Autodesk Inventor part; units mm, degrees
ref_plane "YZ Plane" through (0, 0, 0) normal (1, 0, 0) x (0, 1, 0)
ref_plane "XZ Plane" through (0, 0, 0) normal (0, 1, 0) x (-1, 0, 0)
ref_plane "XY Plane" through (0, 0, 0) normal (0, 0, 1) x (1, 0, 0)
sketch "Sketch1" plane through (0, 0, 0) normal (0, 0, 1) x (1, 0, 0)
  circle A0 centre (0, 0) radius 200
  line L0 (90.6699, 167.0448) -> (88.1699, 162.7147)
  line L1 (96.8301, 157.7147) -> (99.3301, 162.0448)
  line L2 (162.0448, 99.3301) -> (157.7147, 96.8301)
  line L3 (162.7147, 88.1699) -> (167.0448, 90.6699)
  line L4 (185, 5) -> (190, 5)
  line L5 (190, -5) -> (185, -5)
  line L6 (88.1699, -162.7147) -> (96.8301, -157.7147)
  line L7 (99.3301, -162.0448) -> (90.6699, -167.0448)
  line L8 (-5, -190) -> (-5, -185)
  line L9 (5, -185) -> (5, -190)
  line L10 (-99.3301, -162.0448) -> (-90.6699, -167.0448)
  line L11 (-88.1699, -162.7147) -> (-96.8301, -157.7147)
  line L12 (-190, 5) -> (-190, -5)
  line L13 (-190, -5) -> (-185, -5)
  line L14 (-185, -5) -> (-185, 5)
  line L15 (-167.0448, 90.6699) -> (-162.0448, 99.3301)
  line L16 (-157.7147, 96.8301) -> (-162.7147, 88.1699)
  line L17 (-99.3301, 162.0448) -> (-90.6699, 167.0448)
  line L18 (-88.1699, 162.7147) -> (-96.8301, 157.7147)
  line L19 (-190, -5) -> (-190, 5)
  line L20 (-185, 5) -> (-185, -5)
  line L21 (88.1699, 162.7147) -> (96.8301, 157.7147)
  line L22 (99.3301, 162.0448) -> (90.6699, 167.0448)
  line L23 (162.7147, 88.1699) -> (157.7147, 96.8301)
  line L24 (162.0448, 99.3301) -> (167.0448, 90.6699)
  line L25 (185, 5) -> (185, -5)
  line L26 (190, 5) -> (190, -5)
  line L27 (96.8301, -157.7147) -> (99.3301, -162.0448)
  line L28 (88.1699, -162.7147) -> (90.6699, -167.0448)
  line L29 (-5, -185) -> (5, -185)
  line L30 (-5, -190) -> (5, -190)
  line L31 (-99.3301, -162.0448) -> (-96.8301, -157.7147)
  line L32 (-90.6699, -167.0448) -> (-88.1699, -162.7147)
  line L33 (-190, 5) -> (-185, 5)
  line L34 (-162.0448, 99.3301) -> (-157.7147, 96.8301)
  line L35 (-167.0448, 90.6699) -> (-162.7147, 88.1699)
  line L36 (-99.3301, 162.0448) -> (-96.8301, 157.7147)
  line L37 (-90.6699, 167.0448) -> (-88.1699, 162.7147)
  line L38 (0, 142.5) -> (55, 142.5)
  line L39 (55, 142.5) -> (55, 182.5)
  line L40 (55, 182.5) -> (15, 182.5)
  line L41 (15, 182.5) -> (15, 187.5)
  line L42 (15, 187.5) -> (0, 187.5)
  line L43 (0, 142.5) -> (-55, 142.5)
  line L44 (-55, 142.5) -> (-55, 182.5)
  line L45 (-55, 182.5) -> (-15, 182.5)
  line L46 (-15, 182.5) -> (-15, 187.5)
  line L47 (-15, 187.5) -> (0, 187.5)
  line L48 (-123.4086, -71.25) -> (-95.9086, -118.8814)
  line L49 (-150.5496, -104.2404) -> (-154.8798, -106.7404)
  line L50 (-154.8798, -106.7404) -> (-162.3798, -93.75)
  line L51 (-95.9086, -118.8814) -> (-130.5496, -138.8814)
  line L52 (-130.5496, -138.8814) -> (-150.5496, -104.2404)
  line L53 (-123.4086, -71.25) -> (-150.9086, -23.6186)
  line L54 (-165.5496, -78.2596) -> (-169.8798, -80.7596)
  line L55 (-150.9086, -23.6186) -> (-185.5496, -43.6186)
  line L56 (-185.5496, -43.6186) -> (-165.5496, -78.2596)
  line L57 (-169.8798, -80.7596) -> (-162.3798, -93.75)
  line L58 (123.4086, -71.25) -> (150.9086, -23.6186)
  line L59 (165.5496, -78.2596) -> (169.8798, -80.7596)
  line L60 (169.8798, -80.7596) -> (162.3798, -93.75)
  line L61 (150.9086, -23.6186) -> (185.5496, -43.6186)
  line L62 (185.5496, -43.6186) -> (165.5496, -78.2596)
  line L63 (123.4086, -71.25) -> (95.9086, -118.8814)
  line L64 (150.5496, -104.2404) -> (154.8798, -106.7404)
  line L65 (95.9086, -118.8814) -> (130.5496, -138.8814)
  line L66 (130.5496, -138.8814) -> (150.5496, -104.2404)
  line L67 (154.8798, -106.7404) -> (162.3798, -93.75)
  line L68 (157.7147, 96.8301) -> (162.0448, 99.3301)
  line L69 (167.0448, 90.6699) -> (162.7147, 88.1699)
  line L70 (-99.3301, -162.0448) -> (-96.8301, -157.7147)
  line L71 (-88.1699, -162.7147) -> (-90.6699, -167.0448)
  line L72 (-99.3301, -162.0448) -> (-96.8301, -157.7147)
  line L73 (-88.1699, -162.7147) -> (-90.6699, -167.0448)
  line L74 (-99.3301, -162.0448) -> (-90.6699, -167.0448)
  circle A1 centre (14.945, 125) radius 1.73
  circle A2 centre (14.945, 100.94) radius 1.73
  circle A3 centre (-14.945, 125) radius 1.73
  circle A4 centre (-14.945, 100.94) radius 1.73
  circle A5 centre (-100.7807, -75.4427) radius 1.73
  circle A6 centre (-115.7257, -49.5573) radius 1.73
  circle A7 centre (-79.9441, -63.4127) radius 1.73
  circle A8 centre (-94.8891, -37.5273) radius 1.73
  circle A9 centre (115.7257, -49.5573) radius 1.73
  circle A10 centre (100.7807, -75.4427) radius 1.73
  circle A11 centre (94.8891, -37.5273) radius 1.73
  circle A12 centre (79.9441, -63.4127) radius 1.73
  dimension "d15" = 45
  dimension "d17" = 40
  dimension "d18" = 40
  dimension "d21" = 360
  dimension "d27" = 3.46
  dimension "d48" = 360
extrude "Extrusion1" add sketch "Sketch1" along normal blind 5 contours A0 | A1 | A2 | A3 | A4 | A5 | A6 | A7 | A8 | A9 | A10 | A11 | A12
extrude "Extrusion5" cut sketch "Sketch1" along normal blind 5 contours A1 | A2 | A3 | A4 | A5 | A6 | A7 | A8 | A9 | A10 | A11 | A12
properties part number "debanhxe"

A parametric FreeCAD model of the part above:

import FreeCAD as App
import Part
import Sketcher
Q = App.Units.Quantity

doc = App.newDocument("Part")
body = doc.addObject("PartDesign::Body", "Body")

# Sketch on XY plane
sketch1 = body.newObject("Sketcher::SketchObject", "Sketch")
sketch1.AttachmentSupport = (doc.getObject("XY_Plane"), [""])
sketch1.MapMode = "FlatFace"
sketch1.addGeometry([
    Part.Circle(App.Vector(0, 0, 0), App.Vector(0, 0, 1), 200),  # 0
    Part.LineSegment(App.Vector(-90.7, -167, 0), App.Vector(-99.3, -162, 0)),  # 1
    Part.LineSegment(App.Vector(-99.3, -162, 0), App.Vector(-96.8, -157.7, 0)),  # 2
    Part.LineSegment(App.Vector(-96.8, -157.7, 0), App.Vector(-88.2, -162.7, 0)),  # 3
    Part.LineSegment(App.Vector(-88.2, -162.7, 0), App.Vector(-90.7, -167, 0)),  # 4
    Part.LineSegment(App.Vector(-150.9, -23.6, 0), App.Vector(-95.9, -118.9, 0)),  # 5
    Part.LineSegment(App.Vector(-95.9, -118.9, 0), App.Vector(-130.5, -138.9, 0)),  # 6
    Part.LineSegment(App.Vector(-130.5, -138.9, 0), App.Vector(-150.5, -104.2, 0)),  # 7
    Part.LineSegment(App.Vector(-150.5, -104.2, 0), App.Vector(-154.9, -106.7, 0)),  # 8
    Part.LineSegment(App.Vector(-154.9, -106.7, 0), App.Vector(-169.9, -80.8, 0)),  # 9
    Part.LineSegment(App.Vector(-169.9, -80.8, 0), App.Vector(-165.5, -78.3, 0)),  # 10
    Part.LineSegment(App.Vector(-165.5, -78.3, 0), App.Vector(-185.5, -43.6, 0)),  # 11
    Part.LineSegment(App.Vector(-185.5, -43.6, 0), App.Vector(-150.9, -23.6, 0)),  # 12
    Part.LineSegment(App.Vector(5, -190, 0), App.Vector(-5, -190, 0)),  # 13
    Part.LineSegment(App.Vector(-5, -190, 0), App.Vector(-5, -185, 0)),  # 14
    Part.LineSegment(App.Vector(-5, -185, 0), App.Vector(5, -185, 0)),  # 15
    Part.LineSegment(App.Vector(5, -185, 0), App.Vector(5, -190, 0)),  # 16
    Part.LineSegment(App.Vector(90.7, -167, 0), App.Vector(88.2, -162.7, 0)),  # 17
    Part.LineSegment(App.Vector(88.2, -162.7, 0), App.Vector(96.8, -157.7, 0)),  # 18
    Part.LineSegment(App.Vector(96.8, -157.7, 0), App.Vector(99.3, -162, 0)),  # 19
    Part.LineSegment(App.Vector(99.3, -162, 0), App.Vector(90.7, -167, 0)),  # 20
    Part.LineSegment(App.Vector(95.9, -118.9, 0), App.Vector(150.9, -23.6, 0)),  # 21
    Part.LineSegment(App.Vector(150.9, -23.6, 0), App.Vector(185.5, -43.6, 0)),  # 22
    Part.LineSegment(App.Vector(185.5, -43.6, 0), App.Vector(165.5, -78.3, 0)),  # 23
    Part.LineSegment(App.Vector(165.5, -78.3, 0), App.Vector(169.9, -80.8, 0)),  # 24
    Part.LineSegment(App.Vector(169.9, -80.8, 0), App.Vector(154.9, -106.7, 0)),  # 25
    Part.LineSegment(App.Vector(154.9, -106.7, 0), App.Vector(150.5, -104.2, 0)),  # 26
    Part.LineSegment(App.Vector(150.5, -104.2, 0), App.Vector(130.5, -138.9, 0)),  # 27
    Part.LineSegment(App.Vector(130.5, -138.9, 0), App.Vector(95.9, -118.9, 0)),  # 28
    Part.LineSegment(App.Vector(-190, -5, 0), App.Vector(-190, 5, 0)),  # 29
    Part.LineSegment(App.Vector(-190, 5, 0), App.Vector(-185, 5, 0)),  # 30
    Part.LineSegment(App.Vector(-185, 5, 0), App.Vector(-185, -5, 0)),  # 31
    Part.LineSegment(App.Vector(-185, -5, 0), App.Vector(-190, -5, 0)),  # 32
    Part.LineSegment(App.Vector(-162.7, 88.2, 0), App.Vector(-167, 90.7, 0)),  # 33
    Part.LineSegment(App.Vector(-167, 90.7, 0), App.Vector(-162, 99.3, 0)),  # 34
    Part.LineSegment(App.Vector(-162, 99.3, 0), App.Vector(-157.7, 96.8, 0)),  # 35
    Part.LineSegment(App.Vector(-157.7, 96.8, 0), App.Vector(-162.7, 88.2, 0)),  # 36
    Part.LineSegment(App.Vector(-96.8, 157.7, 0), App.Vector(-99.3, 162, 0)),  # 37
    Part.LineSegment(App.Vector(-99.3, 162, 0), App.Vector(-90.7, 167, 0)),  # 38
    Part.LineSegment(App.Vector(-90.7, 167, 0), App.Vector(-88.2, 162.7, 0)),  # 39
    Part.LineSegment(App.Vector(-88.2, 162.7, 0), App.Vector(-96.8, 157.7, 0)),  # 40
    Part.LineSegment(App.Vector(185, -5, 0), App.Vector(185, 5, 0)),  # 41
    Part.LineSegment(App.Vector(185, 5, 0), App.Vector(190, 5, 0)),  # 42
    Part.LineSegment(App.Vector(190, 5, 0), App.Vector(190, -5, 0)),  # 43
    Part.LineSegment(App.Vector(190, -5, 0), App.Vector(185, -5, 0)),  # 44
    Part.LineSegment(App.Vector(157.7, 96.8, 0), App.Vector(162, 99.3, 0)),  # 45
    Part.LineSegment(App.Vector(162, 99.3, 0), App.Vector(167, 90.7, 0)),  # 46
    Part.LineSegment(App.Vector(167, 90.7, 0), App.Vector(162.7, 88.2, 0)),  # 47
    Part.LineSegment(App.Vector(162.7, 88.2, 0), App.Vector(157.7, 96.8, 0)),  # 48
    Part.LineSegment(App.Vector(55, 142.5, 0), App.Vector(-55, 142.5, 0)),  # 49
    Part.LineSegment(App.Vector(-55, 142.5, 0), App.Vector(-55, 182.5, 0)),  # 50
    Part.LineSegment(App.Vector(-55, 182.5, 0), App.Vector(-15, 182.5, 0)),  # 51
    Part.LineSegment(App.Vector(-15, 182.5, 0), App.Vector(-15, 187.5, 0)),  # 52
    Part.LineSegment(App.Vector(-15, 187.5, 0), App.Vector(15, 187.5, 0)),  # 53
    Part.LineSegment(App.Vector(15, 187.5, 0), App.Vector(15, 182.5, 0)),  # 54
    Part.LineSegment(App.Vector(15, 182.5, 0), App.Vector(55, 182.5, 0)),  # 55
    Part.LineSegment(App.Vector(55, 182.5, 0), App.Vector(55, 142.5, 0)),  # 56
    Part.LineSegment(App.Vector(88.2, 162.7, 0), App.Vector(90.7, 167, 0)),  # 57
    Part.LineSegment(App.Vector(90.7, 167, 0), App.Vector(99.3, 162, 0)),  # 58
    Part.LineSegment(App.Vector(99.3, 162, 0), App.Vector(96.8, 157.7, 0)),  # 59
    Part.LineSegment(App.Vector(96.8, 157.7, 0), App.Vector(88.2, 162.7, 0)),  # 60
], False)
sketch1.addConstraint([
    Sketcher.Constraint("Coincident", 1, 2, 2, 1),
    Sketcher.Constraint("Coincident", 2, 2, 3, 1),
    Sketcher.Constraint("Coincident", 3, 2, 4, 1),
    Sketcher.Constraint("Coincident", 4, 2, 1, 1),
    Sketcher.Constraint("Coincident", 5, 2, 6, 1),
    Sketcher.Constraint("Coincident", 6, 2, 7, 1),
    Sketcher.Constraint("Coincident", 7, 2, 8, 1),
    Sketcher.Constraint("Coincident", 8, 2, 9, 1),
    Sketcher.Constraint("Coincident", 9, 2, 10, 1),
    Sketcher.Constraint("Coincident", 10, 2, 11, 1),
    Sketcher.Constraint("Coincident", 11, 2, 12, 1),
    Sketcher.Constraint("Coincident", 12, 2, 5, 1),
    Sketcher.Constraint("Coincident", 13, 2, 14, 1),
    Sketcher.Constraint("Coincident", 14, 2, 15, 1),
    Sketcher.Constraint("Coincident", 15, 2, 16, 1),
    Sketcher.Constraint("Coincident", 16, 2, 13, 1),
    Sketcher.Constraint("Coincident", 17, 2, 18, 1),
    Sketcher.Constraint("Coincident", 18, 2, 19, 1),
    Sketcher.Constraint("Coincident", 19, 2, 20, 1),
    Sketcher.Constraint("Coincident", 20, 2, 17, 1),
    Sketcher.Constraint("Coincident", 21, 2, 22, 1),
    Sketcher.Constraint("Coincident", 22, 2, 23, 1),
    Sketcher.Constraint("Coincident", 23, 2, 24, 1),
    Sketcher.Constraint("Coincident", 24, 2, 25, 1),
    Sketcher.Constraint("Coincident", 25, 2, 26, 1),
    Sketcher.Constraint("Coincident", 26, 2, 27, 1),
    Sketcher.Constraint("Coincident", 27, 2, 28, 1),
    Sketcher.Constraint("Coincident", 28, 2, 21, 1),
    Sketcher.Constraint("Coincident", 29, 2, 30, 1),
    Sketcher.Constraint("Coincident", 30, 2, 31, 1),
    Sketcher.Constraint("Coincident", 31, 2, 32, 1),
    Sketcher.Constraint("Coincident", 32, 2, 29, 1),
    Sketcher.Constraint("Coincident", 33, 2, 34, 1),
    Sketcher.Constraint("Coincident", 34, 2, 35, 1),
    Sketcher.Constraint("Coincident", 35, 2, 36, 1),
    Sketcher.Constraint("Coincident", 36, 2, 33, 1),
    Sketcher.Constraint("Coincident", 37, 2, 38, 1),
    Sketcher.Constraint("Coincident", 38, 2, 39, 1),
    Sketcher.Constraint("Coincident", 39, 2, 40, 1),
    Sketcher.Constraint("Coincident", 40, 2, 37, 1),
    Sketcher.Constraint("Coincident", 41, 2, 42, 1),
    Sketcher.Constraint("Coincident", 42, 2, 43, 1),
    Sketcher.Constraint("Coincident", 43, 2, 44, 1),
    Sketcher.Constraint("Coincident", 44, 2, 41, 1),
    Sketcher.Constraint("Coincident", 45, 2, 46, 1),
    Sketcher.Constraint("Coincident", 46, 2, 47, 1),
    Sketcher.Constraint("Coincident", 47, 2, 48, 1),
    Sketcher.Constraint("Coincident", 48, 2, 45, 1),
    Sketcher.Constraint("Coincident", 49, 2, 50, 1),
    Sketcher.Constraint("Coincident", 50, 2, 51, 1),
    Sketcher.Constraint("Coincident", 51, 2, 52, 1),
    Sketcher.Constraint("Coincident", 52, 2, 53, 1),
    Sketcher.Constraint("Coincident", 53, 2, 54, 1),
    Sketcher.Constraint("Coincident", 54, 2, 55, 1),
    Sketcher.Constraint("Coincident", 55, 2, 56, 1),
    Sketcher.Constraint("Coincident", 56, 2, 49, 1),
    Sketcher.Constraint("Coincident", 57, 2, 58, 1),
    Sketcher.Constraint("Coincident", 58, 2, 59, 1),
    Sketcher.Constraint("Coincident", 59, 2, 60, 1),
    Sketcher.Constraint("Coincident", 60, 2, 57, 1),
    Sketcher.Constraint("Horizontal", 13),
    Sketcher.Constraint("Vertical", 14),
    Sketcher.Constraint("Horizontal", 15),
    Sketcher.Constraint("Vertical", 16),
    Sketcher.Constraint("Vertical", 29),
    Sketcher.Constraint("Horizontal", 30),
    Sketcher.Constraint("Vertical", 31),
    Sketcher.Constraint("Horizontal", 32),
    Sketcher.Constraint("Vertical", 41),
    Sketcher.Constraint("Horizontal", 42),
    Sketcher.Constraint("Vertical", 43),
    Sketcher.Constraint("Horizontal", 44),
    Sketcher.Constraint("Horizontal", 49),
    Sketcher.Constraint("Vertical", 50),
    Sketcher.Constraint("Horizontal", 51),
    Sketcher.Constraint("Vertical", 52),
    Sketcher.Constraint("Horizontal", 53),
    Sketcher.Constraint("Vertical", 54),
    Sketcher.Constraint("Horizontal", 55),
    Sketcher.Constraint("Vertical", 56),
    Sketcher.Constraint("Coincident", 0, 3, -1, 1),
    Sketcher.Constraint("Symmetric", 19, 2, 37, 2, -1, 1),
    Sketcher.Constraint("Symmetric", 20, 2, 38, 2, -1, 1),
    Sketcher.Constraint("Symmetric", 17, 2, 39, 2, -1, 1),
    Sketcher.Constraint("Symmetric", 18, 2, 40, 2, -1, 1),
    Sketcher.Constraint("Symmetric", 31, 2, 41, 2, -1, 1),
    Sketcher.Constraint("Symmetric", 29, 2, 43, 2, -1, 1),
    Sketcher.Constraint("Symmetric", 4, 2, 57, 2, -1, 1),
    Sketcher.Constraint("Symmetric", 1, 2, 58, 2, -1, 1),
    Sketcher.Constraint("Symmetric", 2, 2, 59, 2, -1, 1),
    Sketcher.Constraint("Symmetric", 3, 2, 60, 2, -1, 1),
    Sketcher.Constraint("Symmetric", 3, 2, 17, 2, -2),
    Sketcher.Constraint("Symmetric", 2, 2, 18, 2, -2),
    Sketcher.Constraint("Symmetric", 1, 2, 19, 2, -2),
    Sketcher.Constraint("Symmetric", 4, 2, 20, 2, -2),
    Sketcher.Constraint("Symmetric", 12, 2, 21, 2, -2),
    Sketcher.Constraint("Symmetric", 11, 2, 22, 2, -2),
    Sketcher.Constraint("Symmetric", 10, 2, 23, 2, -2),
    Sketcher.Constraint("Symmetric", 9, 2, 24, 2, -2),
    Sketcher.Constraint("Symmetric", 8, 2, 25, 2, -2),
    Sketcher.Constraint("Symmetric", 7, 2, 26, 2, -2),
    Sketcher.Constraint("Symmetric", 6, 2, 27, 2, -2),
    Sketcher.Constraint("Symmetric", 5, 2, 28, 2, -2),
    Sketcher.Constraint("Symmetric", 34, 2, 45, 2, -2),
    Sketcher.Constraint("Symmetric", 33, 2, 46, 2, -2),
    Sketcher.Constraint("Symmetric", 36, 2, 47, 2, -2),
    Sketcher.Constraint("Symmetric", 35, 2, 48, 2, -2),
    Sketcher.Constraint("Symmetric", 51, 2, 54, 2, -2),
    Sketcher.Constraint("Perpendicular", 1, 2),
    Sketcher.Constraint("Perpendicular", 2, 3),
    Sketcher.Constraint("Perpendicular", 3, 4),
    Sketcher.Constraint("Perpendicular", 5, 6),
    Sketcher.Constraint("Perpendicular", 6, 7),
    Sketcher.Constraint("Perpendicular", 7, 8),
    Sketcher.Constraint("Perpendicular", 8, 9),
    Sketcher.Constraint("Perpendicular", 9, 10),
    Sketcher.Constraint("Perpendicular", 10, 11),
    Sketcher.Constraint("Perpendicular", 11, 12),
    Sketcher.Constraint("Perpendicular", 12, 17),
    Sketcher.Constraint("Parallel", 28, 33),
    Sketcher.Constraint("Perpendicular", 33, 34),
    Sketcher.Constraint("Perpendicular", 34, 35),
    Sketcher.Constraint("Perpendicular", 35, 36),
    Sketcher.Constraint("Horizontal", 30, 2, 41, 2),
    Sketcher.Constraint("Equal", 51, 55),
    Sketcher.Constraint("Equal", 44, 14),
    Sketcher.Constraint("Equal", 15, 29),
    Sketcher.Constraint("Equal", 55, 50),
    Sketcher.Constraint("Equal", 16, 52),
    Sketcher.Constraint("Equal", 6, 7),
    Sketcher.Constraint("Equal", 4, 8),
    Sketcher.Constraint("Equal", 8, 10),
    Sketcher.Constraint("Equal", 7, 11),
    Sketcher.Constraint("Equal", 26, 33),
    Sketcher.Constraint("Equal", 20, 34),
    Sketcher.Constraint("DistanceX", 51, 1, 51, 2, 40.0),
    Sketcher.Constraint("Distance", 6, 40.0),
    Sketcher.Constraint("Diameter", 0, 400.0),
    Sketcher.Constraint("DistanceX", 13, 2, 13, 1, 10.0),
    Sketcher.Constraint("DistanceX", 30, 1, 30, 2, 5.0),
    Sketcher.Constraint("DistanceX", 49, 2, 49, 1, 110.0),
    Sketcher.Constraint("Angle", 1, Q("149.9998 deg")),
    Sketcher.Constraint("Distance", 1, 10.0),
    Sketcher.Constraint("Distance", 2, 5.0),
    Sketcher.Constraint("Distance", 5, 110.0),
    Sketcher.Constraint("DistanceX", 13, 2, -1, 1, 5.0),
    Sketcher.Constraint("DistanceY", 13, 2, -1, 1, 190.0),
    Sketcher.Constraint("DistanceX", 29, 2, -1, 1, 190.0),
    Sketcher.Constraint("DistanceY", -1, 1, 49, 2, 142.5),
    Sketcher.Constraint("DistanceX", 1, 2, -1, 1, 99.33),
    Sketcher.Constraint("DistanceY", -1, 1, 33, 2, 90.67),
    Sketcher.Constraint("DistanceY", 1, 2, -1, 1, 162.0448),
    Sketcher.Constraint("DistanceX", 5, 2, -1, 1, 95.9086),
    Sketcher.Constraint("DistanceY", 5, 2, -1, 1, 118.8814),
    Sketcher.Constraint("DistanceX", 33, 2, -1, 1, 167.0448),
])
pad1 = body.newObject("PartDesign::Pad", "Pad")
pad1.Profile = sketch1
pad1.Length = 5

# Sketch on XY plane
sketch2 = body.newObject("Sketcher::SketchObject", "Sketch001")
sketch2.AttachmentSupport = (doc.getObject("XY_Plane"), [""])
sketch2.MapMode = "FlatFace"
sketch2.addGeometry([
    Part.Circle(App.Vector(14.9, 125, 0), App.Vector(0, 0, 1), 1.7),  # 0
    Part.Circle(App.Vector(14.9, 100.9, 0), App.Vector(0, 0, 1), 1.7),  # 1
    Part.Circle(App.Vector(-14.9, 125, 0), App.Vector(0, 0, 1), 1.7),  # 2
    Part.Circle(App.Vector(-14.9, 100.9, 0), App.Vector(0, 0, 1), 1.7),  # 3
    Part.Circle(App.Vector(-100.8, -75.4, 0), App.Vector(0, 0, 1), 1.7),  # 4
    Part.Circle(App.Vector(-115.7, -49.6, 0), App.Vector(0, 0, 1), 1.7),  # 5
    Part.Circle(App.Vector(-79.9, -63.4, 0), App.Vector(0, 0, 1), 1.7),  # 6
    Part.Circle(App.Vector(-94.9, -37.5, 0), App.Vector(0, 0, 1), 1.7),  # 7
    Part.Circle(App.Vector(115.7, -49.6, 0), App.Vector(0, 0, 1), 1.7),  # 8
    Part.Circle(App.Vector(100.8, -75.4, 0), App.Vector(0, 0, 1), 1.7),  # 9
    Part.Circle(App.Vector(94.9, -37.5, 0), App.Vector(0, 0, 1), 1.7),  # 10
    Part.Circle(App.Vector(79.9, -63.4, 0), App.Vector(0, 0, 1), 1.7),  # 11
], False)
sketch2.addConstraint([
    Sketcher.Constraint("Equal", 0, 1),
    Sketcher.Constraint("Equal", 1, 2),
    Sketcher.Constraint("Equal", 2, 3),
    Sketcher.Constraint("Equal", 3, 4),
    Sketcher.Constraint("Equal", 4, 5),
    Sketcher.Constraint("Equal", 5, 6),
    Sketcher.Constraint("Equal", 6, 7),
    Sketcher.Constraint("Equal", 7, 8),
    Sketcher.Constraint("Equal", 8, 9),
    Sketcher.Constraint("Equal", 9, 10),
    Sketcher.Constraint("Equal", 10, 11),
    Sketcher.Constraint("Symmetric", 0, 3, 2, 3, -2),
    Sketcher.Constraint("Symmetric", 1, 3, 3, 3, -2),
    Sketcher.Constraint("Symmetric", 5, 3, 8, 3, -2),
    Sketcher.Constraint("Symmetric", 4, 3, 9, 3, -2),
    Sketcher.Constraint("Symmetric", 7, 3, 10, 3, -2),
    Sketcher.Constraint("Symmetric", 6, 3, 11, 3, -2),
    Sketcher.Constraint("Vertical", 0, 3, 1, 3),
    Sketcher.Constraint("Diameter", 0, 3.46),
    Sketcher.Constraint("DistanceY", -1, 1, 0, 3, 125.0),
    Sketcher.Constraint("DistanceY", -1, 1, 1, 3, 100.94),
    Sketcher.Constraint("DistanceX", 2, 3, 0, 3, 29.89),
    Sketcher.Constraint("DistanceY", 4, 3, 6, 3, 12.03),
    Sketcher.Constraint("DistanceY", 5, 3, 7, 3, 12.03),
    Sketcher.Constraint("DistanceX", 6, 3, -1, 1, 79.944),
    Sketcher.Constraint("DistanceX", 7, 3, -1, 1, 94.889),
    Sketcher.Constraint("DistanceX", 5, 3, 4, 3, 14.945),
    Sketcher.Constraint("DistanceX", 4, 3, -1, 1, 100.7807),
    Sketcher.Constraint("DistanceY", 4, 3, -1, 1, 75.4427),
    Sketcher.Constraint("DistanceY", 5, 3, -1, 1, 49.5573),
])
pocket1 = body.newObject("PartDesign::Pocket", "Pocket")
pocket1.Profile = sketch2
pocket1.Length = 5
pocket1.Reversed = True

doc.recompute()
